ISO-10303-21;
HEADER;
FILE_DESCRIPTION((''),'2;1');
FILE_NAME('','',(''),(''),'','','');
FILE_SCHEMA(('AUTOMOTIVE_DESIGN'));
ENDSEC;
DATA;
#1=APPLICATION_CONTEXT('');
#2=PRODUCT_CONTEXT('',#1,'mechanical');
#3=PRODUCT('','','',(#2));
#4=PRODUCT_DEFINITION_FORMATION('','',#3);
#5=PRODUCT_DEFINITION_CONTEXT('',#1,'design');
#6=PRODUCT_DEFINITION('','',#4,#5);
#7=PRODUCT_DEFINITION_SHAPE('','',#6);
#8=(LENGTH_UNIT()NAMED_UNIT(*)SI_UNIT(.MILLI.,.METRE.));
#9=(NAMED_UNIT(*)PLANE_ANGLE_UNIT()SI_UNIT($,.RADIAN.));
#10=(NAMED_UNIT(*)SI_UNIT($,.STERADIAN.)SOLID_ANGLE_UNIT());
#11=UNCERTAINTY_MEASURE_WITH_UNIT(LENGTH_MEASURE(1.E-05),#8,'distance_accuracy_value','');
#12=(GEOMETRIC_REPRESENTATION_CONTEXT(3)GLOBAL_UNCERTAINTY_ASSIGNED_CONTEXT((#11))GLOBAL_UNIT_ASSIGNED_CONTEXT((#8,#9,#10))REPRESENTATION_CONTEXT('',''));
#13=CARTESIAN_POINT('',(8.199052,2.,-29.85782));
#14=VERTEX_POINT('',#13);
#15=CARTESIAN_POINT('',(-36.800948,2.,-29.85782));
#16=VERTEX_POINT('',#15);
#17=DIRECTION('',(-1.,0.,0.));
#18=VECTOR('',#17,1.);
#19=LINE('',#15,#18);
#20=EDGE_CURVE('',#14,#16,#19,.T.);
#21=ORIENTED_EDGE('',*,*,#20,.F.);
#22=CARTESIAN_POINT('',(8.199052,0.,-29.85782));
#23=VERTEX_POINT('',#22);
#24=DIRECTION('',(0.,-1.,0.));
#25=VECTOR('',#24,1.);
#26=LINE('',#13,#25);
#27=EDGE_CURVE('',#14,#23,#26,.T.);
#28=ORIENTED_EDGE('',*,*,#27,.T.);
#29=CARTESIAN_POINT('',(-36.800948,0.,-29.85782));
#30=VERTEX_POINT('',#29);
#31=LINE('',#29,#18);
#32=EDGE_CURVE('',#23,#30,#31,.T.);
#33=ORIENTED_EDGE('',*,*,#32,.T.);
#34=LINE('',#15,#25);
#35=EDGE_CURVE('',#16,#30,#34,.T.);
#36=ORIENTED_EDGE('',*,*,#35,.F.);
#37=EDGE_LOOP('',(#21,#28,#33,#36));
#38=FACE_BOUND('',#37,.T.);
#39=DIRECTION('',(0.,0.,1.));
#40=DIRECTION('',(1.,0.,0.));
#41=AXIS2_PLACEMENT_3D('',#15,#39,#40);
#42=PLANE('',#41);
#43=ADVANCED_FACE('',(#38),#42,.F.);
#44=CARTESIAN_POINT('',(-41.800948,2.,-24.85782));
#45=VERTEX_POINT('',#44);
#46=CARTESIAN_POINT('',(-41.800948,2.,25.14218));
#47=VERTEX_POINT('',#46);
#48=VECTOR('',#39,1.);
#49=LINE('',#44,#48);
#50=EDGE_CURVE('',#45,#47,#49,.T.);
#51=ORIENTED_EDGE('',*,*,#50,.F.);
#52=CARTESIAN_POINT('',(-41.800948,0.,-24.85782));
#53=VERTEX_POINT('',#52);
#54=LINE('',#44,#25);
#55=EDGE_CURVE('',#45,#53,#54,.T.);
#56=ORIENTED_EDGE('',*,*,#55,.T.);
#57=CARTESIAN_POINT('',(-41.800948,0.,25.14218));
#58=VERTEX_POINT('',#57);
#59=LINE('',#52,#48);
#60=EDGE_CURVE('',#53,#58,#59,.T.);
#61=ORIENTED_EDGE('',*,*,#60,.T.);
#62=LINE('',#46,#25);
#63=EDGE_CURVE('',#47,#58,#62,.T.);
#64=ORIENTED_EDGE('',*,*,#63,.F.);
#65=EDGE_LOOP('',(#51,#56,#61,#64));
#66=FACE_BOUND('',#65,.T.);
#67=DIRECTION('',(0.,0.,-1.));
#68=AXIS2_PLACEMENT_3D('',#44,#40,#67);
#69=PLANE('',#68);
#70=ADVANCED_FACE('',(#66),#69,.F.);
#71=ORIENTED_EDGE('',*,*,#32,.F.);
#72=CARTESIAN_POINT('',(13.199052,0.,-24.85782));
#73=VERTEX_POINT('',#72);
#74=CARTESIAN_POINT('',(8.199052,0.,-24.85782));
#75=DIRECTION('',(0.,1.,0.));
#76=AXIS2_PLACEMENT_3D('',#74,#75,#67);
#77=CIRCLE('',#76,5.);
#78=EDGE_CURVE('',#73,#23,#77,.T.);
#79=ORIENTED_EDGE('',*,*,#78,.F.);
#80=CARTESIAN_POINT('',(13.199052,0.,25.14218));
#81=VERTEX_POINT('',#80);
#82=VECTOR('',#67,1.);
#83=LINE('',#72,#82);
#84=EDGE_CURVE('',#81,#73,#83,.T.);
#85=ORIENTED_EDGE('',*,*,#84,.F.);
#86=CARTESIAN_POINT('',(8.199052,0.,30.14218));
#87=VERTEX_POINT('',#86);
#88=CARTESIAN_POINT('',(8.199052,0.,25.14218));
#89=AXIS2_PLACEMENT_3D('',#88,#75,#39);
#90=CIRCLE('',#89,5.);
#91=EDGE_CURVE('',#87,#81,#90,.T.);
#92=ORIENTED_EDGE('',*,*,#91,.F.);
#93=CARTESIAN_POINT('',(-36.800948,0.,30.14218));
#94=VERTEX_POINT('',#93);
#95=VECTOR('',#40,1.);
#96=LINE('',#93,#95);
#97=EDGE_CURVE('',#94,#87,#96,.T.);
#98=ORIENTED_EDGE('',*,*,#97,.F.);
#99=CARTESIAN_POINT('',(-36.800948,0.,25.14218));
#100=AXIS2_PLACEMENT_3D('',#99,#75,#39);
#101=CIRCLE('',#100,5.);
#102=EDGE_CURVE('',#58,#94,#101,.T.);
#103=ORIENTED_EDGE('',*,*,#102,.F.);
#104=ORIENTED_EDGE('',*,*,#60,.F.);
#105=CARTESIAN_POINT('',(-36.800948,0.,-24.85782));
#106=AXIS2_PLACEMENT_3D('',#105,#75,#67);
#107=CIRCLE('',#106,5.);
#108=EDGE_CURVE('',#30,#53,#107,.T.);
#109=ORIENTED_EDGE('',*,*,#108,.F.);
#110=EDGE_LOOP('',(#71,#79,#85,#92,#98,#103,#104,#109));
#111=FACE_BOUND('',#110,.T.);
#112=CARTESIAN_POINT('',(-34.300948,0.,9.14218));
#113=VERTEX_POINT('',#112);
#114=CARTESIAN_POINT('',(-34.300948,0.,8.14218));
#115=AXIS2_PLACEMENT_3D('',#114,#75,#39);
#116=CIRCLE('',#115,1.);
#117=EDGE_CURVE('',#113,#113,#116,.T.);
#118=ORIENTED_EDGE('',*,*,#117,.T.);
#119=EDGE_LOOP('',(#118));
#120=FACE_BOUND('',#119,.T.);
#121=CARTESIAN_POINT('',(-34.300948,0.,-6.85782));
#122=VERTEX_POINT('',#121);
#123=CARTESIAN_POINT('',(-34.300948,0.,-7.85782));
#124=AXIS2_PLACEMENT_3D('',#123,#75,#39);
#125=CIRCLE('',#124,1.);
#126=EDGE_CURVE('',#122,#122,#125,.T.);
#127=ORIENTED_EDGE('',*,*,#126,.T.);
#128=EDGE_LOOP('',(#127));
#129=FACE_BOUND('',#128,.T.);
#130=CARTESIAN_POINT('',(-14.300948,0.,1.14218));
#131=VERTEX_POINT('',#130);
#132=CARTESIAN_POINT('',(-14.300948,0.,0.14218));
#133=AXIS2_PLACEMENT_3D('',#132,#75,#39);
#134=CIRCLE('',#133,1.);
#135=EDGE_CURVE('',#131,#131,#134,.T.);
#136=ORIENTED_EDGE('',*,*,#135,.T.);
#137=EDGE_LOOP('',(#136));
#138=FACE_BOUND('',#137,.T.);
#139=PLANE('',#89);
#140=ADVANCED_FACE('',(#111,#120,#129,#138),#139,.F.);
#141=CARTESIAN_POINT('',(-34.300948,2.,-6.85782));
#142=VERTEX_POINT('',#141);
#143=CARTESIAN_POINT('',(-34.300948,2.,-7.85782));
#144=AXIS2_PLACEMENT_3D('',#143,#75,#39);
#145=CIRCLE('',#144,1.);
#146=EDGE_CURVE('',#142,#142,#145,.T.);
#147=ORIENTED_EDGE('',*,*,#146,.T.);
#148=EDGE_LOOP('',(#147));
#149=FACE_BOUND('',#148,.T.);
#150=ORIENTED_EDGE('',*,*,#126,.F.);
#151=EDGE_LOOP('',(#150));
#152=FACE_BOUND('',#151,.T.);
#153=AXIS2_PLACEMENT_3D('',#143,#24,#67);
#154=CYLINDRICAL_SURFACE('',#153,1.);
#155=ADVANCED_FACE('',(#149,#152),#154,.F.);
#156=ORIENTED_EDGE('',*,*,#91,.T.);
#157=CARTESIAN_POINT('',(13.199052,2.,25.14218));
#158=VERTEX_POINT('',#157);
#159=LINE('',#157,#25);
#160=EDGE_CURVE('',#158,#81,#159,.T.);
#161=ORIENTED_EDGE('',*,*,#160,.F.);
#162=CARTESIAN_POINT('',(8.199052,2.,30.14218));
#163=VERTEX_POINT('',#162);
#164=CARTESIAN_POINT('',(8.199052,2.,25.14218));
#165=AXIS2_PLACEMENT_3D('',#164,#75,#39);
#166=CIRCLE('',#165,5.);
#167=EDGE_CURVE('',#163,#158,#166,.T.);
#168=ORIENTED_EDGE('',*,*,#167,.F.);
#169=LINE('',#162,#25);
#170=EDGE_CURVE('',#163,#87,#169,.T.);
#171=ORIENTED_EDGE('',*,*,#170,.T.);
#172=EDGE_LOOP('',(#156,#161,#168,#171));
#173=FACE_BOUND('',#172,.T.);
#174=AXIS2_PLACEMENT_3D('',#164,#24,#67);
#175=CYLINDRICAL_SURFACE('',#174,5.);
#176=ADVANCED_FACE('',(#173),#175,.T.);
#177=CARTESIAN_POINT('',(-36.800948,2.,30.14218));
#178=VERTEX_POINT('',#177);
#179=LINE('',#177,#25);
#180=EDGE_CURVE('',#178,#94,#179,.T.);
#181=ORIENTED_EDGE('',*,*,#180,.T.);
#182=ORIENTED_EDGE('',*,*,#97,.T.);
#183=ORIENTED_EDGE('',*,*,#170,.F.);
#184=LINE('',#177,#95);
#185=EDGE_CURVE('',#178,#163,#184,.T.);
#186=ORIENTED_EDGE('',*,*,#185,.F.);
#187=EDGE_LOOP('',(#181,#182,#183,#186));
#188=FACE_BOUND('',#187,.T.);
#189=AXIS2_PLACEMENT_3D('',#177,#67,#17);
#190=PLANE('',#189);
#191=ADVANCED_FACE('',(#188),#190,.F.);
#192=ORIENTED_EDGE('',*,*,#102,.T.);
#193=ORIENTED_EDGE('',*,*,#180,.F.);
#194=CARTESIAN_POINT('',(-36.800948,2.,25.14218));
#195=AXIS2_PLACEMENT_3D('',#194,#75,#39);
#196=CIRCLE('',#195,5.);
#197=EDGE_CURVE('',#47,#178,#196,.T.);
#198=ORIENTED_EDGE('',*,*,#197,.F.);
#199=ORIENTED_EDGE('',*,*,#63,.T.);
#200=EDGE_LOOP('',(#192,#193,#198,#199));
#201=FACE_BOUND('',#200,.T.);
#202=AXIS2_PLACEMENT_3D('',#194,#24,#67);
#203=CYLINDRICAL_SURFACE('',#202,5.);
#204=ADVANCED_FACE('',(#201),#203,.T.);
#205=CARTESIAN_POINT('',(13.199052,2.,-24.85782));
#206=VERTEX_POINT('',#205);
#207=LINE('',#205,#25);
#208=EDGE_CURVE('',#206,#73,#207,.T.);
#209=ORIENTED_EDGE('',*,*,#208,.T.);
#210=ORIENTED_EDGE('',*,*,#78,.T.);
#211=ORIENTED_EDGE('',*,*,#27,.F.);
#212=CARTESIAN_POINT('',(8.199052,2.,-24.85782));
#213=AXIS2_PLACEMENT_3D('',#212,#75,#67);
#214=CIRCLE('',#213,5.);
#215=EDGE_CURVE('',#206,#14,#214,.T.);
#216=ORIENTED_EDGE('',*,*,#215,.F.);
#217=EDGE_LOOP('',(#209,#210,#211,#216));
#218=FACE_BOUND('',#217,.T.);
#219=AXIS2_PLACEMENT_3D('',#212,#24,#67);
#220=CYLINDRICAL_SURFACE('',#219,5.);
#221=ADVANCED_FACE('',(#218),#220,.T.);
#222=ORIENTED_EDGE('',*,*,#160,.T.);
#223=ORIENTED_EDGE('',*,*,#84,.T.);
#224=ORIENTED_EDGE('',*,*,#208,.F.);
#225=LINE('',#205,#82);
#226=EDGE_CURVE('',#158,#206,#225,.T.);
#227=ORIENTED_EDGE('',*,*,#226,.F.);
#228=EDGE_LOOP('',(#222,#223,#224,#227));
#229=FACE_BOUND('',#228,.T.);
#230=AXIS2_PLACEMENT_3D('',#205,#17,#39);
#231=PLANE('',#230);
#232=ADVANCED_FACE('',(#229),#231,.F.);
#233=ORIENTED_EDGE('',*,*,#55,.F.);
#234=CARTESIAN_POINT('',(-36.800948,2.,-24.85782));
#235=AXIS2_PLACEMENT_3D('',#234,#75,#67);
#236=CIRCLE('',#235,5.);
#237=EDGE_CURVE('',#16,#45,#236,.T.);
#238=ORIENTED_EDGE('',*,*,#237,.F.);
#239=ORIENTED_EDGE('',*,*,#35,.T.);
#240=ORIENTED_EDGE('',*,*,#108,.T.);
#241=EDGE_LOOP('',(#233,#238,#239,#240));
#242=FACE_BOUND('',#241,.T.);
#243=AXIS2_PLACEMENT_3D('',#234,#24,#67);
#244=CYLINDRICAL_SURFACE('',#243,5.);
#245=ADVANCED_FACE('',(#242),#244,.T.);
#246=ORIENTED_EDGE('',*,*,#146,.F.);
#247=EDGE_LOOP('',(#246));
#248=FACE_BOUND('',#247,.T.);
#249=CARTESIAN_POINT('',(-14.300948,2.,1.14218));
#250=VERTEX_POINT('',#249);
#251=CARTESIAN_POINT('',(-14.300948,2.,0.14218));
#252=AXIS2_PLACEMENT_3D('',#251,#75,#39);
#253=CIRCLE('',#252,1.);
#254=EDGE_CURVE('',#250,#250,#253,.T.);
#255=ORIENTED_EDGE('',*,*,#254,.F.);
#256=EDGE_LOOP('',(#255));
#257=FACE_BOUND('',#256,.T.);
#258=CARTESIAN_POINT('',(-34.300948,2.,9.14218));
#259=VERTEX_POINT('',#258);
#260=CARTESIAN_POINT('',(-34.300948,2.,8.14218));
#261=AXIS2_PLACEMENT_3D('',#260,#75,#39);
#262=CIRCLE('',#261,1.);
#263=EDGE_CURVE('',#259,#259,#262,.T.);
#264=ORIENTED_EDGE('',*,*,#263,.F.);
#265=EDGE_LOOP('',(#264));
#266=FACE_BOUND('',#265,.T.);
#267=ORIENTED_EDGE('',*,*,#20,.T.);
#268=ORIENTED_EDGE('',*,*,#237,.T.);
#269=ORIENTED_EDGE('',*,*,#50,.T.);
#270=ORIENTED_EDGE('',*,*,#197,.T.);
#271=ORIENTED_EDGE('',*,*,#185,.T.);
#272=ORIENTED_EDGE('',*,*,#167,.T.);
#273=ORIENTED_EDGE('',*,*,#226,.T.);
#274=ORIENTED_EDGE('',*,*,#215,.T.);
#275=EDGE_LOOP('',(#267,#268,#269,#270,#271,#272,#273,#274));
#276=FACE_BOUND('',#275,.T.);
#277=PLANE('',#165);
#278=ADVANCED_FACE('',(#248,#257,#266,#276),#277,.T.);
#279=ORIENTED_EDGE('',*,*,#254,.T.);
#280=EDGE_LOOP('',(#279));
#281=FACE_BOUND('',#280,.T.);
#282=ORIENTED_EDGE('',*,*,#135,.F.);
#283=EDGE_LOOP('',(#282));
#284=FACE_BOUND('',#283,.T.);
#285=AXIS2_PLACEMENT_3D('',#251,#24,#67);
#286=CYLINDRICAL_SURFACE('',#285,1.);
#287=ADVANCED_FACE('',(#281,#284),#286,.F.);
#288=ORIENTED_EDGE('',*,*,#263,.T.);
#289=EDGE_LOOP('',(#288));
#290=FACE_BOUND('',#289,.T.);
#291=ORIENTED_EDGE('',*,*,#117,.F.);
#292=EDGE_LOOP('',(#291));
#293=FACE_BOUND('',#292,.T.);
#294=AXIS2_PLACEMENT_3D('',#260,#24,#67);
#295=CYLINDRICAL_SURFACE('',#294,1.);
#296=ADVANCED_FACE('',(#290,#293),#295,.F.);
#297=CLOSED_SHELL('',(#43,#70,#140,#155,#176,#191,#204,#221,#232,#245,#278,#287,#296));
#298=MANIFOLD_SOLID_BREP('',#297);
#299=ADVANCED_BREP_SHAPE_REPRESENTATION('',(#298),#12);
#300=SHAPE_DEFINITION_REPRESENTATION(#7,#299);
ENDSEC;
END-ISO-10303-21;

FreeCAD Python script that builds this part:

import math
import FreeCAD as App
import Part
import Sketcher
Q = App.Units.Quantity

doc = App.newDocument("Part")
body = doc.addObject("PartDesign::Body", "Body")

# Sketch on XZ plane
sketch1 = body.newObject("Sketcher::SketchObject", "Sketch")
sketch1.AttachmentSupport = (doc.getObject("XZ_Plane"), [""])
sketch1.MapMode = "FlatFace"
sketch1.addGeometry([
    Part.LineSegment(App.Vector(8.199052, -29.85782, 0), App.Vector(-36.800948, -29.85782, 0)),  # 0
    Part.ArcOfCircle(Part.Circle(App.Vector(-36.800948, -24.85782, 0), App.Vector(0, 0, 1), 5), math.radians(180), math.radians(270)),  # 1
    Part.LineSegment(App.Vector(-41.800948, -24.85782, 0), App.Vector(-41.800948, 25.14218, 0)),  # 2
    Part.ArcOfCircle(Part.Circle(App.Vector(-36.800948, 25.14218, 0), App.Vector(0, 0, 1), 5), math.radians(90), math.radians(180)),  # 3
    Part.LineSegment(App.Vector(-36.800948, 30.14218, 0), App.Vector(8.199052, 30.14218, 0)),  # 4
    Part.ArcOfCircle(Part.Circle(App.Vector(8.199052, 25.14218, 0), App.Vector(0, 0, 1), 5), math.radians(0), math.radians(90)),  # 5
    Part.LineSegment(App.Vector(13.199052, 25.14218, 0), App.Vector(13.199052, -24.85782, 0)),  # 6
    Part.ArcOfCircle(Part.Circle(App.Vector(8.199052, -24.85782, 0), App.Vector(0, 0, 1), 5), math.radians(-90), math.radians(0)),  # 7
    Part.Circle(App.Vector(-34.300948, 8.14218, 0), App.Vector(0, 0, 1), 1),  # 8
    Part.Circle(App.Vector(-14.300948, 0.14218, 0), App.Vector(0, 0, 1), 1),  # 9
    Part.Circle(App.Vector(-34.300948, -7.85782, 0), App.Vector(0, 0, 1), 1),  # 10
], False)
sketch1.addConstraint([
    Sketcher.Constraint("Tangent", 0, 2, 1, 2),
    Sketcher.Constraint("Tangent", 1, 1, 2, 1),
    Sketcher.Constraint("Tangent", 2, 2, 3, 2),
    Sketcher.Constraint("Tangent", 3, 1, 4, 1),
    Sketcher.Constraint("Tangent", 4, 2, 5, 2),
    Sketcher.Constraint("Tangent", 5, 1, 6, 1),
    Sketcher.Constraint("Tangent", 6, 2, 7, 2),
    Sketcher.Constraint("Tangent", 7, 1, 0, 1),
    Sketcher.Constraint("Horizontal", 0),
    Sketcher.Constraint("Vertical", 2),
    Sketcher.Constraint("Horizontal", 4),
    Sketcher.Constraint("Vertical", 6),
    Sketcher.Constraint("Equal", 1, 3),
    Sketcher.Constraint("Equal", 3, 5),
    Sketcher.Constraint("Equal", 5, 7),
    Sketcher.Constraint("Equal", 8, 9),
    Sketcher.Constraint("Equal", 9, 10),
    Sketcher.Constraint("Vertical", 8, 3, 10, 3),
    Sketcher.Constraint("Diameter", 8, Q("2 mm")),
    Sketcher.Constraint("Radius", 1, Q("5 mm")),
    Sketcher.Constraint("DistanceX", 0, 2, 0, 1, Q("45 mm")),
    Sketcher.Constraint("DistanceY", 2, 1, 2, 2, Q("50 mm")),
    Sketcher.Constraint("DistanceY", 8, 3, 3, 3, Q("17 mm")),
    Sketcher.Constraint("DistanceX", 8, 3, 9, 3, Q("20 mm")),
    Sketcher.Constraint("DistanceY", 9, 3, 8, 3, Q("8 mm")),
    Sketcher.Constraint("DistanceY", 10, 3, 8, 3, Q("16 mm")),
    Sketcher.Constraint("DistanceX", 3, 3, 8, 3, Q("2.5 mm")),
    Sketcher.Constraint("DistanceY", 1, 3, -1, 1, Q("24.85782 mm")),
    Sketcher.Constraint("DistanceX", 1, 3, -1, 1, Q("36.800948 mm")),
])
pad1 = body.newObject("PartDesign::Pad", "Pad")
pad1.Profile = sketch1
pad1.Length = 2
pad1.Reversed = True

doc.recompute()
